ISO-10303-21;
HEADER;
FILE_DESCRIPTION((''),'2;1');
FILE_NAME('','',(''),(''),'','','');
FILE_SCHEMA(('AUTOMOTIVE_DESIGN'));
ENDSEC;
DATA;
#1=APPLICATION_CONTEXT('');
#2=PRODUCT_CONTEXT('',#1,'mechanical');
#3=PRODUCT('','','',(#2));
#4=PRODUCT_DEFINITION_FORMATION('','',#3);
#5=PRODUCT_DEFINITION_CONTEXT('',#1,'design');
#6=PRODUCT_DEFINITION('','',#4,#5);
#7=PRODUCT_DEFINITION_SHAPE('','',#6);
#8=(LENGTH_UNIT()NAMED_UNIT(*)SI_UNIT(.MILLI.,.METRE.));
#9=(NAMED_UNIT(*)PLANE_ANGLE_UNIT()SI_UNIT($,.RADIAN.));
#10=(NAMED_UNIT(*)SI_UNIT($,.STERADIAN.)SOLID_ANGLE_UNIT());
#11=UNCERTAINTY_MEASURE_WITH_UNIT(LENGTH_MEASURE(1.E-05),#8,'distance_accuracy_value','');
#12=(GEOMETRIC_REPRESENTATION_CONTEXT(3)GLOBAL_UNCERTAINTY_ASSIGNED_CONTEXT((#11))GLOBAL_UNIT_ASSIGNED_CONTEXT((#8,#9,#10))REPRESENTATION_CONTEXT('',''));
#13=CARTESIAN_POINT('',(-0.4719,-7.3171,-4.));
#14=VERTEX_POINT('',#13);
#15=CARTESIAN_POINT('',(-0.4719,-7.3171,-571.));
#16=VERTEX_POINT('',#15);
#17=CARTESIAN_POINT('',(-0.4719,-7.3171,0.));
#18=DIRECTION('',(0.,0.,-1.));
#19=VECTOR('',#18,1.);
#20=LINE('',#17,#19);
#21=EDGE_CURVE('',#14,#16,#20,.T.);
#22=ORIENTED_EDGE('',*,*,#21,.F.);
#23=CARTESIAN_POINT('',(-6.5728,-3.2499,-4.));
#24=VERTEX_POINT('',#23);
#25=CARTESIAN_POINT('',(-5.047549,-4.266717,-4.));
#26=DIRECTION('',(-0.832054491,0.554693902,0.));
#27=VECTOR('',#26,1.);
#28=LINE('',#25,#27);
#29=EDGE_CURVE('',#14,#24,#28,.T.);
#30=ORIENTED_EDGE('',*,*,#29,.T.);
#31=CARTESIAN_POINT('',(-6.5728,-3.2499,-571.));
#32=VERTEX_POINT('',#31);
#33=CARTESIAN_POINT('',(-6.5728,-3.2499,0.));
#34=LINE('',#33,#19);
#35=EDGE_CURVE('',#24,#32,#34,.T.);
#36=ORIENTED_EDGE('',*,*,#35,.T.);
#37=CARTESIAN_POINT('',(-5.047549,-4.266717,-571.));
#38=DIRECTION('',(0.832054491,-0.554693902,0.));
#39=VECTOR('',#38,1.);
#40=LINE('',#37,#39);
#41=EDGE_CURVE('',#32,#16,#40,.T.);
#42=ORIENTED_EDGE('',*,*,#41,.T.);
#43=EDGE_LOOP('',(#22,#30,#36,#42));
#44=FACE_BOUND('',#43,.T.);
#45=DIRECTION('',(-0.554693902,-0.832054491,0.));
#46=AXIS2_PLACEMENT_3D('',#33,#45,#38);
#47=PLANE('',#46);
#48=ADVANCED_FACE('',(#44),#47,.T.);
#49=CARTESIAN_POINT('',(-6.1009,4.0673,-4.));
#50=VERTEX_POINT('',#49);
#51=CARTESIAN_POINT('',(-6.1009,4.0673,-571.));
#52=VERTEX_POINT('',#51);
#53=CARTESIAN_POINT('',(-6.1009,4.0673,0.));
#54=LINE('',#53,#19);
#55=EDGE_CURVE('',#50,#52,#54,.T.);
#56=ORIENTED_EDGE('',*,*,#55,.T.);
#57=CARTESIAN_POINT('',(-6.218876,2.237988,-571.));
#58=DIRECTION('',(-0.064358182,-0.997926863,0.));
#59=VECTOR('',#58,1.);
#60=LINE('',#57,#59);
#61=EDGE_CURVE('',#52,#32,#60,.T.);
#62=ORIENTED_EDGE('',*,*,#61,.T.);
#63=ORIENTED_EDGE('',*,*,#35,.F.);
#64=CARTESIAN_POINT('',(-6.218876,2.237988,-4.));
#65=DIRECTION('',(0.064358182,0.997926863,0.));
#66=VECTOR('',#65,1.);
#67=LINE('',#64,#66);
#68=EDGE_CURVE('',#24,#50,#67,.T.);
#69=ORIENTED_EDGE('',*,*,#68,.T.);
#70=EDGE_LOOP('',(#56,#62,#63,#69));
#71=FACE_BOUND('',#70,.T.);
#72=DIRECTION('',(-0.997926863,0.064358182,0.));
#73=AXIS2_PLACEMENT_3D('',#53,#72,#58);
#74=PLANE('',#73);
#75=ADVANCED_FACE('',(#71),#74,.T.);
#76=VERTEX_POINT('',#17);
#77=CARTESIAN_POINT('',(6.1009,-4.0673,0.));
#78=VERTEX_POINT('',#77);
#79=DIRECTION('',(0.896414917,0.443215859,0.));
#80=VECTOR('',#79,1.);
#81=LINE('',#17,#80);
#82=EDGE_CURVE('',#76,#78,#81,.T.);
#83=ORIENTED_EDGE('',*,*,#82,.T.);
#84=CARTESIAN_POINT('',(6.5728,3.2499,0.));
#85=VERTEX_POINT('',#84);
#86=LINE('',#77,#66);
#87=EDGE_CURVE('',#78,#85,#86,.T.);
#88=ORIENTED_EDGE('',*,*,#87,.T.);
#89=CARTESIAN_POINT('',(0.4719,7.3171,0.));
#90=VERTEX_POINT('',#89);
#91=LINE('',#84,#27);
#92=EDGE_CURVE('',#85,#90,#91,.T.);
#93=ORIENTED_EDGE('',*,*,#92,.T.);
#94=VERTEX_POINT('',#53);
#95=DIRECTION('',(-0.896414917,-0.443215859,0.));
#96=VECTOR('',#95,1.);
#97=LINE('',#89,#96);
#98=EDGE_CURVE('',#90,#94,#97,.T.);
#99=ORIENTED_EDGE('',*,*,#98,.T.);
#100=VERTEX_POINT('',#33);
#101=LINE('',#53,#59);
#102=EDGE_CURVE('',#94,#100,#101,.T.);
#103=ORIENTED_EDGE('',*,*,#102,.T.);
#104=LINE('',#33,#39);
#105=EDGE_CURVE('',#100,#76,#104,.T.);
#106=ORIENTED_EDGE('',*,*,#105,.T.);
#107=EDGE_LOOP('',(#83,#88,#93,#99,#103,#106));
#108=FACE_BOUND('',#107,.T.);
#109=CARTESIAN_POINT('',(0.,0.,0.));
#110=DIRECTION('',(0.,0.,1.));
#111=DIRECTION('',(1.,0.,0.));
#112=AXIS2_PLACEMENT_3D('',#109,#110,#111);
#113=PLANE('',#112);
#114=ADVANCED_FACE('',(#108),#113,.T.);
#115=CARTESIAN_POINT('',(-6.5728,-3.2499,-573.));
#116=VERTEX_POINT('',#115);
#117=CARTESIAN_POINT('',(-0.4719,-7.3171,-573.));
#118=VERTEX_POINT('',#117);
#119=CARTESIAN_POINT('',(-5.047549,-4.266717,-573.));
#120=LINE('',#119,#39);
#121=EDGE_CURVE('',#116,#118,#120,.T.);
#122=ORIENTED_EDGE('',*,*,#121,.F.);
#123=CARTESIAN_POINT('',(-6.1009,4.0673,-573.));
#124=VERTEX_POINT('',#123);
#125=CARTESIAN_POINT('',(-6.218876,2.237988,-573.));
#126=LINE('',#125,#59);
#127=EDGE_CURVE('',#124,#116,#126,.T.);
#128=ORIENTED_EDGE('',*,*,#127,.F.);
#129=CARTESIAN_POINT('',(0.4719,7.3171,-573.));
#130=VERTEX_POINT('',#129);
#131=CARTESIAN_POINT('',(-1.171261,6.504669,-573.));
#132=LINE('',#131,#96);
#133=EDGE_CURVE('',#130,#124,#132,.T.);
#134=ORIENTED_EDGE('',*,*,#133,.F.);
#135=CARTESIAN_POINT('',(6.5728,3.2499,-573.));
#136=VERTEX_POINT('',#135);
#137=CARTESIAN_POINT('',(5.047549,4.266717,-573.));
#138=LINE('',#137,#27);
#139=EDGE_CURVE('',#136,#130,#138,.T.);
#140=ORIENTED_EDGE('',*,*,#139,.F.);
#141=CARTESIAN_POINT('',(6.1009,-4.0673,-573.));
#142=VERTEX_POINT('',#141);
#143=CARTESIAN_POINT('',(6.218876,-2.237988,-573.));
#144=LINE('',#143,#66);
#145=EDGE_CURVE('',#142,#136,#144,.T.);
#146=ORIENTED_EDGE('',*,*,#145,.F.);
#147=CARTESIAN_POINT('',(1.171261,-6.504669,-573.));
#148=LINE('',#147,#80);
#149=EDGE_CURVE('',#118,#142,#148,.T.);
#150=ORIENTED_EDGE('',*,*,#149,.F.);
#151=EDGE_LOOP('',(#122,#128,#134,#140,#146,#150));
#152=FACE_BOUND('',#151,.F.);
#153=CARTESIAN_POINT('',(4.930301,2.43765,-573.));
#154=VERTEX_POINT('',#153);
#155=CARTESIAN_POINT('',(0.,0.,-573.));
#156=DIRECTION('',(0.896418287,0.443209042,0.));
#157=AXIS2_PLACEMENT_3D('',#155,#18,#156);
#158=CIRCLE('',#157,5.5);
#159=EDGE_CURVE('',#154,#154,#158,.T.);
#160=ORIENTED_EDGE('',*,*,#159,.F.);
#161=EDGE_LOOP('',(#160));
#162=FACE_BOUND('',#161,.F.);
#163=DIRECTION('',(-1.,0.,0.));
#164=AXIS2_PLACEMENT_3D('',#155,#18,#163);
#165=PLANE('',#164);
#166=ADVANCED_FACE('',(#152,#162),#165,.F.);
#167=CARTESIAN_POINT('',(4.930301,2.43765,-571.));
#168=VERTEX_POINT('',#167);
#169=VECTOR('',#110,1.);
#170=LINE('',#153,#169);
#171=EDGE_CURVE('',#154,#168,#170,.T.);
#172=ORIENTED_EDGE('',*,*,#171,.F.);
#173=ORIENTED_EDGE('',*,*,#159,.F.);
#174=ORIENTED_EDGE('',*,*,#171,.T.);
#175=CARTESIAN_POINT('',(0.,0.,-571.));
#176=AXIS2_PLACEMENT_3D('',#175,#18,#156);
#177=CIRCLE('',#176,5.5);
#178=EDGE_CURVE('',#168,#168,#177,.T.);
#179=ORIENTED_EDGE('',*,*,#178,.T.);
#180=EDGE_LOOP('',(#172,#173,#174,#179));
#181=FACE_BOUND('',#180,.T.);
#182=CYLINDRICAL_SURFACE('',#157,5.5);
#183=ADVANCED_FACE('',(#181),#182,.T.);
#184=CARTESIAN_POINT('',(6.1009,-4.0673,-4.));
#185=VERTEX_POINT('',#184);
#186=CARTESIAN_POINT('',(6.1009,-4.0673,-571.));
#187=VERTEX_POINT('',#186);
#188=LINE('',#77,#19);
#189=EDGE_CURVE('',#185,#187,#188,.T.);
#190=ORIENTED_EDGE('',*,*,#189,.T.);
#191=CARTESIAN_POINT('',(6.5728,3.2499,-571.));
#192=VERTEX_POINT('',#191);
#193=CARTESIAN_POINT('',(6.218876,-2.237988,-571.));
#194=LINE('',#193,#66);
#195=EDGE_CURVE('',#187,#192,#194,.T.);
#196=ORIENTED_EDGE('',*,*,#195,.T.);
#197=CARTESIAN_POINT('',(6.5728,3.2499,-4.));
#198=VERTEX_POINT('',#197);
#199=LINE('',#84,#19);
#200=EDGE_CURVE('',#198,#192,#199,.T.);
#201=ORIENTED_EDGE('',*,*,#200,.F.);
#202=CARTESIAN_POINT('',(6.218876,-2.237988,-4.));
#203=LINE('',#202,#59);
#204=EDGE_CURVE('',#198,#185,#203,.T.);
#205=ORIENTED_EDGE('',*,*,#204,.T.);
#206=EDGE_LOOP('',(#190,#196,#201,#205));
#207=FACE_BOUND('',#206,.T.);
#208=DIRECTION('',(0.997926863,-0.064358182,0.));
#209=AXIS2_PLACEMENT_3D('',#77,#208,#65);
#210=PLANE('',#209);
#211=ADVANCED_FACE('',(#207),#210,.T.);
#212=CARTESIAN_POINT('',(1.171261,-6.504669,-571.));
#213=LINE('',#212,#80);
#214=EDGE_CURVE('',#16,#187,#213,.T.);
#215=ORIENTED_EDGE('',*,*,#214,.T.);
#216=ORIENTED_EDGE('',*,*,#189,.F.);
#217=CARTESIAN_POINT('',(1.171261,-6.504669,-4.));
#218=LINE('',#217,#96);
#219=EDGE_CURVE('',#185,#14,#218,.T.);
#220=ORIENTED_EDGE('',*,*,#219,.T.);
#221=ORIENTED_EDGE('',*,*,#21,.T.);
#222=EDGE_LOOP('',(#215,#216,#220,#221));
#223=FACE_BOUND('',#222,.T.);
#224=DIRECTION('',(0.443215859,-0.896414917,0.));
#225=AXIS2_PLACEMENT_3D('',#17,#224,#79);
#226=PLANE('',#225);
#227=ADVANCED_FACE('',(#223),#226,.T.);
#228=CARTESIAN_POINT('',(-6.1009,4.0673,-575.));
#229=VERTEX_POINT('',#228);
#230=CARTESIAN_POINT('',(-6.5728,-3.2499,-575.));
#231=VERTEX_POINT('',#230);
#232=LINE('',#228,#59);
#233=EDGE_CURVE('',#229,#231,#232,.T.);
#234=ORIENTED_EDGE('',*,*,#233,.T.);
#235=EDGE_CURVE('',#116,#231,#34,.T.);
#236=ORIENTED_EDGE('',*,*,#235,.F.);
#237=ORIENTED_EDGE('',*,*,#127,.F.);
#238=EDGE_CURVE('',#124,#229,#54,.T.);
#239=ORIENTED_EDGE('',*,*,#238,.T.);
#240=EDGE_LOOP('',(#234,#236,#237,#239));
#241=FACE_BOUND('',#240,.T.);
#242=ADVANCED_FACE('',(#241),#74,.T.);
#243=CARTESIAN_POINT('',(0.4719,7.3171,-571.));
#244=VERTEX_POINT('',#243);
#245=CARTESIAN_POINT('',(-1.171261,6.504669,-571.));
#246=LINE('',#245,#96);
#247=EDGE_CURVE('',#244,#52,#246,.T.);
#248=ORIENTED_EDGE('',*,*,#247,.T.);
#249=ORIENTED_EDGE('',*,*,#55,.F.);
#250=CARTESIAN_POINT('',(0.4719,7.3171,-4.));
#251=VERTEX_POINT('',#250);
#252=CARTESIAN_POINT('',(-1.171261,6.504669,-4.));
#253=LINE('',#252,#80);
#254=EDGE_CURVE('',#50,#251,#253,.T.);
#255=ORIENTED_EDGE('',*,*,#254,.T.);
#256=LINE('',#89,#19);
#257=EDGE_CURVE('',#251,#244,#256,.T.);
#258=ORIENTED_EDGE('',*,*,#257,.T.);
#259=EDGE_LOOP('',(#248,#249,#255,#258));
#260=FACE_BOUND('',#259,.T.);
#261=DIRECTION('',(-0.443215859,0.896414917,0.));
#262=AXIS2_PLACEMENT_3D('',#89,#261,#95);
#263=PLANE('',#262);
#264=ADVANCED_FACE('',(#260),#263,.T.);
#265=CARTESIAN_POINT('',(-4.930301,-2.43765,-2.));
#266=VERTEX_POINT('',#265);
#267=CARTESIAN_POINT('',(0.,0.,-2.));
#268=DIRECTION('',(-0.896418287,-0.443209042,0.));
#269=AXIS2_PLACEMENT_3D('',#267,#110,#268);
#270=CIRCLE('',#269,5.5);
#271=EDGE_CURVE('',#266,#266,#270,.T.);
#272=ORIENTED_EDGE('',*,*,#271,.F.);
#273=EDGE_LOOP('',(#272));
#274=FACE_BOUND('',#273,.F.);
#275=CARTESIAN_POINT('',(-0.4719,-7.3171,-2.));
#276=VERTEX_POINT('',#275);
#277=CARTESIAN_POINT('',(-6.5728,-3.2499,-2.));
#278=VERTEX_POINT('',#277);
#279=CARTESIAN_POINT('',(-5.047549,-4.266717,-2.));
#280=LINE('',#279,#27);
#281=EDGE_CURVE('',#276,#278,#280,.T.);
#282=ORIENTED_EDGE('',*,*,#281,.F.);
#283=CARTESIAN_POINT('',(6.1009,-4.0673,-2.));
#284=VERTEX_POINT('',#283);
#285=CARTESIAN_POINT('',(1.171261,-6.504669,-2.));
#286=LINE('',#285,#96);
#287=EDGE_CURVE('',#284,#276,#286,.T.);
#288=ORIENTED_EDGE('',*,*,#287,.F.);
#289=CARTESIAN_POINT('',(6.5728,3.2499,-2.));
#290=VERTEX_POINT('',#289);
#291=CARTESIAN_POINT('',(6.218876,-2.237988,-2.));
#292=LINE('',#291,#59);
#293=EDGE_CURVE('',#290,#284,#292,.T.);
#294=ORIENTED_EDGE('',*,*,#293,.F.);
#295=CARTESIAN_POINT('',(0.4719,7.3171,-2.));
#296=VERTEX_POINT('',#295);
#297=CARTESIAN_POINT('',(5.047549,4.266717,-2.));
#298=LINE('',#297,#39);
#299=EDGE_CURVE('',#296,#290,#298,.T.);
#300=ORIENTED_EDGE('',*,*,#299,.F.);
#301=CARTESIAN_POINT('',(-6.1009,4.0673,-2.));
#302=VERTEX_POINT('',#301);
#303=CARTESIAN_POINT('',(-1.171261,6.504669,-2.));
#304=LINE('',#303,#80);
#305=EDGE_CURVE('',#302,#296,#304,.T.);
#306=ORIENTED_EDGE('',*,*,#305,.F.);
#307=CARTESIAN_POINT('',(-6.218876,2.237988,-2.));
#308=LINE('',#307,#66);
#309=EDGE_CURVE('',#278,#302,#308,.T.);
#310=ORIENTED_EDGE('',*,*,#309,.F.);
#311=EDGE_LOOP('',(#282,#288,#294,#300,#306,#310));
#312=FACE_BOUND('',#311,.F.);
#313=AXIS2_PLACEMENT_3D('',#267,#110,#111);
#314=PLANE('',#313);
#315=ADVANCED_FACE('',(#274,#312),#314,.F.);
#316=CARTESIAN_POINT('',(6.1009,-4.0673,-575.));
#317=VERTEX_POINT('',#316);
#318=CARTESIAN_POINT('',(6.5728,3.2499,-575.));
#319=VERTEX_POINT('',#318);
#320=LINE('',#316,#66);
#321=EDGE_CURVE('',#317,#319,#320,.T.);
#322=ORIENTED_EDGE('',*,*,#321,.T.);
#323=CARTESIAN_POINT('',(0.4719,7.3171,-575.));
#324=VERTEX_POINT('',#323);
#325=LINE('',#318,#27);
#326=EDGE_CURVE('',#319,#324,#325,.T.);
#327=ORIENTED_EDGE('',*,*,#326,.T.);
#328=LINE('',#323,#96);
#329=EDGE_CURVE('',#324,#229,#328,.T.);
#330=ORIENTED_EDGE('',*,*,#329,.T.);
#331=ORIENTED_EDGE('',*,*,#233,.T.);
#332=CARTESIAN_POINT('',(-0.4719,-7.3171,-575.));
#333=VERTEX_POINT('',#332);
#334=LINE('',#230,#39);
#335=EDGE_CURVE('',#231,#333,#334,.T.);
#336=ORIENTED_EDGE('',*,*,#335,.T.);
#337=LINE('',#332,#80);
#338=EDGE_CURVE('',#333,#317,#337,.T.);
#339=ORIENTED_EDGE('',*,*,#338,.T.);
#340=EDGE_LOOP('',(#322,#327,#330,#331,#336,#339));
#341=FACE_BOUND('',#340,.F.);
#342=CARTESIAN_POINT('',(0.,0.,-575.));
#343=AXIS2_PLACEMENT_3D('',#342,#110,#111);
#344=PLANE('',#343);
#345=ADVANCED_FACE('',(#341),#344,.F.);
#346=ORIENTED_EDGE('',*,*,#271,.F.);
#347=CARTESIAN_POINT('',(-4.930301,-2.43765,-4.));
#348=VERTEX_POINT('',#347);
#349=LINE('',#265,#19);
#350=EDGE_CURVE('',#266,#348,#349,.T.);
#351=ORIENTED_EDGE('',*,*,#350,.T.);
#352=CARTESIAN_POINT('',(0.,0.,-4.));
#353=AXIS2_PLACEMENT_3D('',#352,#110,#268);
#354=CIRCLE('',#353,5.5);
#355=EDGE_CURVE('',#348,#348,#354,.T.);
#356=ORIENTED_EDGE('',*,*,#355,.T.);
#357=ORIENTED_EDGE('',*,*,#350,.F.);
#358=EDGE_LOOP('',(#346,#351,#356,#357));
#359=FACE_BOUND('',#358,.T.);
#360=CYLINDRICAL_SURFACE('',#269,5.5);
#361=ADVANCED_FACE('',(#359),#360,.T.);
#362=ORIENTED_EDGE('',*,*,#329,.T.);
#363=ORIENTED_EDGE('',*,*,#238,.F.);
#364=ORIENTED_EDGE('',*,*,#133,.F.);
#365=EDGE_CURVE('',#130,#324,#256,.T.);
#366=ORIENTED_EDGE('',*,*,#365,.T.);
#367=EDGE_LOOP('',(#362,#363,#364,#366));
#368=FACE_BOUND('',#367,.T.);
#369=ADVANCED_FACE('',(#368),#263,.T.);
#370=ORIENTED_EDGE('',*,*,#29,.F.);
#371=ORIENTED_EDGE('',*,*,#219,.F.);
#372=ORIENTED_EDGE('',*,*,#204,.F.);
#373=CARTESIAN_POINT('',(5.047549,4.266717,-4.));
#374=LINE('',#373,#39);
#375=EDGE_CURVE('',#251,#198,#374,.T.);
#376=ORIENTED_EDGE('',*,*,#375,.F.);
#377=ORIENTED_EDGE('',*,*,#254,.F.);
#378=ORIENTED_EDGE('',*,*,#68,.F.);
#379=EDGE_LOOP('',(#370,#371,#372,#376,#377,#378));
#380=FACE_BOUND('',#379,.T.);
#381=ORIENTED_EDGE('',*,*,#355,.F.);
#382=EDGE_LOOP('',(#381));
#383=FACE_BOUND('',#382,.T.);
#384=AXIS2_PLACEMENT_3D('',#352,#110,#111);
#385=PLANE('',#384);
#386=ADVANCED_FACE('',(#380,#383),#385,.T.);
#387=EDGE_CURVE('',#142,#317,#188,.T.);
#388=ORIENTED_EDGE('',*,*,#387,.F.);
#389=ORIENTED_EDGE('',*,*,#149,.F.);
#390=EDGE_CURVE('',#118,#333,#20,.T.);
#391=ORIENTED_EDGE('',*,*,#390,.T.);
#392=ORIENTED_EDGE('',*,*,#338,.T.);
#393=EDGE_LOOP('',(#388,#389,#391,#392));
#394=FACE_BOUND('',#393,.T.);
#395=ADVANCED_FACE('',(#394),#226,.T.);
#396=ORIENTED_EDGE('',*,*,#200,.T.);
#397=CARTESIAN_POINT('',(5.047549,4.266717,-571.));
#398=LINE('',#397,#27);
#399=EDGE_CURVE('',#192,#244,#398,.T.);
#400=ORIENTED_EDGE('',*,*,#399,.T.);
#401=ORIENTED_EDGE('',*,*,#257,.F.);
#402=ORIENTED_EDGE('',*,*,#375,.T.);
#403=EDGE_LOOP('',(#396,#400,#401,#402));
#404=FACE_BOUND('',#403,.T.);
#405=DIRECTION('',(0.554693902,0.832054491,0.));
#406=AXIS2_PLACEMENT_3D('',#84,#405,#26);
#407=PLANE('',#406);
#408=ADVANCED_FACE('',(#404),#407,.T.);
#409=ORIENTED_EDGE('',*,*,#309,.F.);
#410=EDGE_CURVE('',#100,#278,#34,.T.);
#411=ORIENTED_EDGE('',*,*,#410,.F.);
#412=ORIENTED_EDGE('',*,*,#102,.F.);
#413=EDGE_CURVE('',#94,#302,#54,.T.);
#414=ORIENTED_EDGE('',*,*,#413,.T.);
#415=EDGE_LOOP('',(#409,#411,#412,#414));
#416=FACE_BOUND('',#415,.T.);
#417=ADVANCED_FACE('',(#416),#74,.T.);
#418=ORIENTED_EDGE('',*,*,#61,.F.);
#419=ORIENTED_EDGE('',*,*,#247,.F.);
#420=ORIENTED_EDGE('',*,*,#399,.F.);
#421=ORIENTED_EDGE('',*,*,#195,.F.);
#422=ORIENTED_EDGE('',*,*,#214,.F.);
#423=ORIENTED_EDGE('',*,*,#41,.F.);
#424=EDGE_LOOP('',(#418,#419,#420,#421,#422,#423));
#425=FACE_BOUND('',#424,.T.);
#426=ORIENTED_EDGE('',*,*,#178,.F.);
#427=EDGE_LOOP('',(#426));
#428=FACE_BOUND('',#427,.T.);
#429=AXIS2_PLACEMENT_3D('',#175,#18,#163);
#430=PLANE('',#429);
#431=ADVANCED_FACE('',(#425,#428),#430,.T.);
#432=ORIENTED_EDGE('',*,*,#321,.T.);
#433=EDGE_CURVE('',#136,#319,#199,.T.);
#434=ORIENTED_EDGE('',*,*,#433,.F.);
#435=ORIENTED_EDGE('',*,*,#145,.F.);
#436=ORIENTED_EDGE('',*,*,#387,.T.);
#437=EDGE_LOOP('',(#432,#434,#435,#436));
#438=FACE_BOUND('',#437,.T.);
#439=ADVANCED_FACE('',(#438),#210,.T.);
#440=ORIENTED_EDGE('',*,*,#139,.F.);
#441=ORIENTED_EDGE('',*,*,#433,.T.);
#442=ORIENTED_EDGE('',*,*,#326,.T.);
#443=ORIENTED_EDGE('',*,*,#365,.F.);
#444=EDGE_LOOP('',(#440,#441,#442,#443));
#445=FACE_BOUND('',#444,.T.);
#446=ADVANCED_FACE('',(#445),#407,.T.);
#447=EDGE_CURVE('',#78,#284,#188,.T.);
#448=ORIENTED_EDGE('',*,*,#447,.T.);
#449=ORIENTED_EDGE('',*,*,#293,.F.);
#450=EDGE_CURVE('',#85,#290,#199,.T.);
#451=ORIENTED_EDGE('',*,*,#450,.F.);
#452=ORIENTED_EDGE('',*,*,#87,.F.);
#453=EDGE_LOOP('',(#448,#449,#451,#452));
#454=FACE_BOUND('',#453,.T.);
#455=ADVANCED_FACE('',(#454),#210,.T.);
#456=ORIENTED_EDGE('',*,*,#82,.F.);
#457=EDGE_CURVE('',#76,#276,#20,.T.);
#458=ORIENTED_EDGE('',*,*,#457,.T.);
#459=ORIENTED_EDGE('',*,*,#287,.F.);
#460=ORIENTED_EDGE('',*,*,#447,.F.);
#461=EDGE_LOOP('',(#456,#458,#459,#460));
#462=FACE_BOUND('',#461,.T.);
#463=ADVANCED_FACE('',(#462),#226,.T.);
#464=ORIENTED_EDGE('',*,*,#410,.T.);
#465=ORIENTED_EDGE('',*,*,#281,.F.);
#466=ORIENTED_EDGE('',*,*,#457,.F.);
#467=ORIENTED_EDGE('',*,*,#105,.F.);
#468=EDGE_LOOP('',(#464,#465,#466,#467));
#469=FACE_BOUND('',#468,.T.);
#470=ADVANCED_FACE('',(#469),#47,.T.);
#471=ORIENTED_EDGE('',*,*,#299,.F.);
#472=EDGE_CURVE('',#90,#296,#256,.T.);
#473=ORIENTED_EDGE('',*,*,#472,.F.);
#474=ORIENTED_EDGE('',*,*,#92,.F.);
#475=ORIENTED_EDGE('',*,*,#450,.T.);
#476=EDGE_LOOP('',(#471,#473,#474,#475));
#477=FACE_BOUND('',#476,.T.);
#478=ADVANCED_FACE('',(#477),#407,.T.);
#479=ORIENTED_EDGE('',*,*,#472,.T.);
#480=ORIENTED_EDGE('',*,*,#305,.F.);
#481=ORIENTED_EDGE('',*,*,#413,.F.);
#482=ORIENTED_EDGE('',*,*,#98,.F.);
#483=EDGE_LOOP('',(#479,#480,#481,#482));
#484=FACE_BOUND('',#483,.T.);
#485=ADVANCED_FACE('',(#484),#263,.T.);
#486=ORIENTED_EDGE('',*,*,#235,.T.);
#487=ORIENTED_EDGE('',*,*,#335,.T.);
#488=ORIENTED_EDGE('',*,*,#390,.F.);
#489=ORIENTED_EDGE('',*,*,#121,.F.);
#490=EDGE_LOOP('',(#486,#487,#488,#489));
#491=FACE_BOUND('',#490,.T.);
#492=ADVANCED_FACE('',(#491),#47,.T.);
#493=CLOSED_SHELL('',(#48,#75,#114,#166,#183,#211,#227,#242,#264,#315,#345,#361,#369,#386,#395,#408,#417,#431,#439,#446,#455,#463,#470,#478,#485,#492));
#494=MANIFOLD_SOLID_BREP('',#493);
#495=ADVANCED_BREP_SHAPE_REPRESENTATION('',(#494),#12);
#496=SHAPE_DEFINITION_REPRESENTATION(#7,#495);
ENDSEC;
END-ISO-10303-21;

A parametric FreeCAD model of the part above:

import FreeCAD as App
import Part
import Sketcher
Q = App.Units.Quantity

doc = App.newDocument("Part")
body = doc.addObject("PartDesign::Body", "Body")

# Sketch on XY plane
sketch1 = body.newObject("Sketcher::SketchObject", "Sketch")
sketch1.AttachmentSupport = (doc.getObject("XY_Plane"), [""])
sketch1.MapMode = "FlatFace"
sketch1.addGeometry([
    Part.LineSegment(App.Vector(0, 7, 0), App.Vector(-6, 4, 0)),  # 0
    Part.LineSegment(App.Vector(-6, 4, 0), App.Vector(-7, -3, 0)),  # 1
    Part.LineSegment(App.Vector(-7, -3, 0), App.Vector(0, -7, 0)),  # 2
    Part.LineSegment(App.Vector(0, -7, 0), App.Vector(6, -4, 0)),  # 3
    Part.LineSegment(App.Vector(6, -4, 0), App.Vector(7, 3, 0)),  # 4
    Part.LineSegment(App.Vector(7, 3, 0), App.Vector(0, 7, 0)),  # 5
], False)
sketch1.addConstraint([
    Sketcher.Constraint("Coincident", 0, 2, 1, 1),
    Sketcher.Constraint("Coincident", 1, 2, 2, 1),
    Sketcher.Constraint("Coincident", 2, 2, 3, 1),
    Sketcher.Constraint("Coincident", 3, 2, 4, 1),
    Sketcher.Constraint("Coincident", 4, 2, 5, 1),
    Sketcher.Constraint("Coincident", 5, 2, 0, 1),
    Sketcher.Constraint("Symmetric", 0, 2, 3, 2, -1, 1),
    Sketcher.Constraint("Symmetric", 1, 2, 4, 2, -1, 1),
    Sketcher.Constraint("Symmetric", 2, 2, 5, 2, -1, 1),
    Sketcher.Constraint("Equal", 0, 1),
    Sketcher.Constraint("Equal", 1, 2),
    Sketcher.Constraint("Angle", 0, Q("-153.6908 deg")),
    Sketcher.Constraint("Angle", 1, Q("-93.69 deg")),
    Sketcher.Constraint("Angle", 2, Q("-33.6896 deg")),
    Sketcher.Constraint("DistanceY", 1, 2, -1, 1, 3.25),
])
pad1 = body.newObject("PartDesign::Pad", "Pad")
pad1.Profile = sketch1
pad1.Length = 575
pad1.Reversed = True

# Sketch on XY plane
sketch2 = body.newObject("Sketcher::SketchObject", "Sketch001")
sketch2.AttachmentSupport = (doc.getObject("XY_Plane"), [""])
sketch2.MapMode = "FlatFace"
sketch2.AttachmentOffset = App.Placement(App.Vector(0, 0, -2), App.Rotation())
sketch2.addGeometry([
    Part.Circle(App.Vector(0, 0, 0), App.Vector(0, 0, 1), 13),
    Part.Circle(App.Vector(0, 0, 0), App.Vector(0, 0, 1), 6),
], False)
sketch2.addConstraint([
    Sketcher.Constraint("Coincident", 0, 3, -1, 1),
    Sketcher.Constraint("Coincident", 1, 3, -1, 1),
    Sketcher.Constraint("Diameter", 1, 11.0),
    Sketcher.Constraint("Diameter", 0, 26.2848),
])
pocket1 = body.newObject("PartDesign::Pocket", "Pocket")
pocket1.Profile = sketch2
pocket1.Length = 2

# Sketch on XY plane
sketch3 = body.newObject("Sketcher::SketchObject", "Sketch002")
sketch3.AttachmentSupport = (doc.getObject("XY_Plane"), [""])
sketch3.MapMode = "FlatFace"
sketch3.AttachmentOffset = App.Placement(App.Vector(0, 0, -573), App.Rotation())
sketch3.addGeometry([
    Part.Circle(App.Vector(0, 0, 0), App.Vector(0, 0, 1), 13),
    Part.Circle(App.Vector(0, 0, 0), App.Vector(0, 0, 1), 6),
], False)
sketch3.addConstraint([
    Sketcher.Constraint("Coincident", 0, 3, -1, 1),
    Sketcher.Constraint("Coincident", 1, 3, -1, 1),
    Sketcher.Constraint("Diameter", 1, 11.0),
    Sketcher.Constraint("Diameter", 0, 26.2848),
])
pocket2 = body.newObject("PartDesign::Pocket", "Pocket001")
pocket2.Profile = sketch3
pocket2.Length = 2
pocket2.Reversed = True

doc.recompute()
